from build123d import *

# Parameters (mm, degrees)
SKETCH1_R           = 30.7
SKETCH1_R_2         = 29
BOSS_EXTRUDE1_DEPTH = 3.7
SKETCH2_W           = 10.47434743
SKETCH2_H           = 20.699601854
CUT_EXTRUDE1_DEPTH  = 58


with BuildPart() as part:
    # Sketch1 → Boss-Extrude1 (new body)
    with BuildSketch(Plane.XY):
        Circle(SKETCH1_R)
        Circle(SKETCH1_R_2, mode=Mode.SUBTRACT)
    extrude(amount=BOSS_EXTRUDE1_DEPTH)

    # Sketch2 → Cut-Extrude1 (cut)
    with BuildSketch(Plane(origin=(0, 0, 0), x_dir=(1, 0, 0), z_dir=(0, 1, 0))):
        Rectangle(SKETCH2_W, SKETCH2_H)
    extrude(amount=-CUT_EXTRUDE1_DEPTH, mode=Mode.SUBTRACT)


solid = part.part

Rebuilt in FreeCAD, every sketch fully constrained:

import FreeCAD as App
import Part
import Sketcher


def add_polygon(sketch, points):
    """Adds a closed chain of lines whose ends are joined by coincident constraints."""
    first, n = sketch.GeometryCount, len(points)
    for a, b in zip(points, points[1:] + points[:1]):
        sketch.addGeometry(Part.LineSegment(App.Vector(*a, 0), App.Vector(*b, 0)), False)
    for i in range(n):
        sketch.addConstraint(Sketcher.Constraint("Coincident", first + i, 2, first + (i + 1) % n, 1))

doc = App.newDocument("Part")
body = doc.addObject("PartDesign::Body", "Body")

# Sketch on XY plane
sketch1 = body.newObject("Sketcher::SketchObject", "Sketch")
sketch1.AttachmentSupport = (doc.getObject("XY_Plane"), [""])
sketch1.MapMode = "FlatFace"
sketch1.addGeometry([
    Part.Circle(App.Vector(0, 0, 0), App.Vector(0, 0, 1), 31),
    Part.Circle(App.Vector(0, 0, 0), App.Vector(0, 0, 1), 29),
], False)
sketch1.addConstraint([
    Sketcher.Constraint("Coincident", 0, 3, -1, 1),
    Sketcher.Constraint("Coincident", 1, 3, -1, 1),
    Sketcher.Constraint("Diameter", 1, 58.0),
    Sketcher.Constraint("Diameter", 0, 61.4),
])
pad1 = body.newObject("PartDesign::Pad", "Pad")
pad1.Profile = sketch1
pad1.Length = 3.7

# Sketch on XZ plane
sketch2 = body.newObject("Sketcher::SketchObject", "Sketch001")
sketch2.AttachmentSupport = (doc.getObject("XZ_Plane"), [""])
sketch2.MapMode = "FlatFace"
add_polygon(sketch2, [(-5, -10), (-5, 10), (5, 10), (5, -10)])  # lines 0-3
sketch2.addConstraint([
    Sketcher.Constraint("Vertical", 0),
    Sketcher.Constraint("Horizontal", 1),
    Sketcher.Constraint("Vertical", 2),
    Sketcher.Constraint("Horizontal", 3),
    Sketcher.Constraint("Symmetric", 0, 2, 2, 2, -1, 1),
    Sketcher.Constraint("DistanceY", 0, 1, 0, 2, 20.699602),
    Sketcher.Constraint("DistanceX", 1, 1, 1, 2, 10.474347),
])
pocket1 = body.newObject("PartDesign::Pocket", "Pocket")
pocket1.Profile = sketch2
pocket1.Length = 58
pocket1.Reversed = True

doc.recompute()
